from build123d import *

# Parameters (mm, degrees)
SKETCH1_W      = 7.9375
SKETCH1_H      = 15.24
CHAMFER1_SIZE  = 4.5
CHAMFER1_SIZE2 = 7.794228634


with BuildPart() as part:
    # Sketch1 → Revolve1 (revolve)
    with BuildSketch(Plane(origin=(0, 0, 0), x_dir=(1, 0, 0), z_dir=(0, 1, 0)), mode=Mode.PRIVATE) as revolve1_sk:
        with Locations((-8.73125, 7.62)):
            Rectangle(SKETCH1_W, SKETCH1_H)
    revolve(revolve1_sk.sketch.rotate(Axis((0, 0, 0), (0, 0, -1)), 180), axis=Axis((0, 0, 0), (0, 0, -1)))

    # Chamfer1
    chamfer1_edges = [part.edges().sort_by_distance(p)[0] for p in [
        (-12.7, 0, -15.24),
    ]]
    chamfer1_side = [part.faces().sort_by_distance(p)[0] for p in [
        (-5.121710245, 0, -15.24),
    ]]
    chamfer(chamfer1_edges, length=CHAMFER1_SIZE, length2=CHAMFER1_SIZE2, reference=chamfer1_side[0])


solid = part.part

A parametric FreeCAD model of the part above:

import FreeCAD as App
import Part
import Sketcher
from FreeCAD import Vector
Q = App.Units.Quantity


def edges_at(feature, points):
    """Names of the edges that pass closest to the given points."""
    edges = feature.Shape.Edges
    near = lambda p: min(range(len(edges)), key=lambda i: edges[i].distToShape(Part.Vertex(*p))[0])
    return sorted({f"Edge{near(p) + 1}" for p in points})


def add_polygon(sketch, points):
    """Adds a closed chain of lines whose ends are joined by coincident constraints."""
    first, n = sketch.GeometryCount, len(points)
    for a, b in zip(points, points[1:] + points[:1]):
        sketch.addGeometry(Part.LineSegment(App.Vector(*a, 0), App.Vector(*b, 0)), False)
    for i in range(n):
        sketch.addConstraint(Sketcher.Constraint("Coincident", first + i, 2, first + (i + 1) % n, 1))

doc = App.newDocument("Part")
body = doc.addObject("PartDesign::Body", "Body")

sketch1 = body.newObject("Sketcher::SketchObject", "Sketch")
sketch1.AttachmentSupport = (doc.getObject("XZ_Plane"), [""])
sketch1.MapMode = "FlatFace"
add_polygon(sketch1, [(-13, -15), (-13, 0), (-5, 0), (-5, -15)])
sketch1.addConstraint(Sketcher.Constraint("Vertical", 0))
sketch1.addConstraint(Sketcher.Constraint("Horizontal", 1))
sketch1.addConstraint(Sketcher.Constraint("Vertical", 2))
sketch1.addConstraint(Sketcher.Constraint("Horizontal", 3))
sketch1.addConstraint(Sketcher.Constraint("PointOnObject", 0, 2, -1))
sketch1.addConstraint(Sketcher.Constraint("DistanceY", 0, 1, 0, 2, Q("0.6 in")))
sketch1.addConstraint(Sketcher.Constraint("DistanceX", 0, 2, -1, 1, Q("0.5 in")))
sketch1.addConstraint(Sketcher.Constraint("DistanceX", 1, 1, 1, 2, Q("0.3125 in")))
revolution = body.newObject("PartDesign::Revolution", "Revolution")
revolution.Profile = sketch1
revolution.ReferenceAxis = (sketch1, ["V_Axis"])
revolution.Angle = 360
doc.recompute()

chamfer = body.newObject("PartDesign::Chamfer", "Chamfer")
chamfer.Base = (revolution, edges_at(revolution, [(-12.7, 0, -15.24)]))
chamfer.ChamferType = "Two distances"
chamfer.Size = 4.5
chamfer.Size2 = 7.794229
chamfer.FlipDirection = True

doc.recompute()
